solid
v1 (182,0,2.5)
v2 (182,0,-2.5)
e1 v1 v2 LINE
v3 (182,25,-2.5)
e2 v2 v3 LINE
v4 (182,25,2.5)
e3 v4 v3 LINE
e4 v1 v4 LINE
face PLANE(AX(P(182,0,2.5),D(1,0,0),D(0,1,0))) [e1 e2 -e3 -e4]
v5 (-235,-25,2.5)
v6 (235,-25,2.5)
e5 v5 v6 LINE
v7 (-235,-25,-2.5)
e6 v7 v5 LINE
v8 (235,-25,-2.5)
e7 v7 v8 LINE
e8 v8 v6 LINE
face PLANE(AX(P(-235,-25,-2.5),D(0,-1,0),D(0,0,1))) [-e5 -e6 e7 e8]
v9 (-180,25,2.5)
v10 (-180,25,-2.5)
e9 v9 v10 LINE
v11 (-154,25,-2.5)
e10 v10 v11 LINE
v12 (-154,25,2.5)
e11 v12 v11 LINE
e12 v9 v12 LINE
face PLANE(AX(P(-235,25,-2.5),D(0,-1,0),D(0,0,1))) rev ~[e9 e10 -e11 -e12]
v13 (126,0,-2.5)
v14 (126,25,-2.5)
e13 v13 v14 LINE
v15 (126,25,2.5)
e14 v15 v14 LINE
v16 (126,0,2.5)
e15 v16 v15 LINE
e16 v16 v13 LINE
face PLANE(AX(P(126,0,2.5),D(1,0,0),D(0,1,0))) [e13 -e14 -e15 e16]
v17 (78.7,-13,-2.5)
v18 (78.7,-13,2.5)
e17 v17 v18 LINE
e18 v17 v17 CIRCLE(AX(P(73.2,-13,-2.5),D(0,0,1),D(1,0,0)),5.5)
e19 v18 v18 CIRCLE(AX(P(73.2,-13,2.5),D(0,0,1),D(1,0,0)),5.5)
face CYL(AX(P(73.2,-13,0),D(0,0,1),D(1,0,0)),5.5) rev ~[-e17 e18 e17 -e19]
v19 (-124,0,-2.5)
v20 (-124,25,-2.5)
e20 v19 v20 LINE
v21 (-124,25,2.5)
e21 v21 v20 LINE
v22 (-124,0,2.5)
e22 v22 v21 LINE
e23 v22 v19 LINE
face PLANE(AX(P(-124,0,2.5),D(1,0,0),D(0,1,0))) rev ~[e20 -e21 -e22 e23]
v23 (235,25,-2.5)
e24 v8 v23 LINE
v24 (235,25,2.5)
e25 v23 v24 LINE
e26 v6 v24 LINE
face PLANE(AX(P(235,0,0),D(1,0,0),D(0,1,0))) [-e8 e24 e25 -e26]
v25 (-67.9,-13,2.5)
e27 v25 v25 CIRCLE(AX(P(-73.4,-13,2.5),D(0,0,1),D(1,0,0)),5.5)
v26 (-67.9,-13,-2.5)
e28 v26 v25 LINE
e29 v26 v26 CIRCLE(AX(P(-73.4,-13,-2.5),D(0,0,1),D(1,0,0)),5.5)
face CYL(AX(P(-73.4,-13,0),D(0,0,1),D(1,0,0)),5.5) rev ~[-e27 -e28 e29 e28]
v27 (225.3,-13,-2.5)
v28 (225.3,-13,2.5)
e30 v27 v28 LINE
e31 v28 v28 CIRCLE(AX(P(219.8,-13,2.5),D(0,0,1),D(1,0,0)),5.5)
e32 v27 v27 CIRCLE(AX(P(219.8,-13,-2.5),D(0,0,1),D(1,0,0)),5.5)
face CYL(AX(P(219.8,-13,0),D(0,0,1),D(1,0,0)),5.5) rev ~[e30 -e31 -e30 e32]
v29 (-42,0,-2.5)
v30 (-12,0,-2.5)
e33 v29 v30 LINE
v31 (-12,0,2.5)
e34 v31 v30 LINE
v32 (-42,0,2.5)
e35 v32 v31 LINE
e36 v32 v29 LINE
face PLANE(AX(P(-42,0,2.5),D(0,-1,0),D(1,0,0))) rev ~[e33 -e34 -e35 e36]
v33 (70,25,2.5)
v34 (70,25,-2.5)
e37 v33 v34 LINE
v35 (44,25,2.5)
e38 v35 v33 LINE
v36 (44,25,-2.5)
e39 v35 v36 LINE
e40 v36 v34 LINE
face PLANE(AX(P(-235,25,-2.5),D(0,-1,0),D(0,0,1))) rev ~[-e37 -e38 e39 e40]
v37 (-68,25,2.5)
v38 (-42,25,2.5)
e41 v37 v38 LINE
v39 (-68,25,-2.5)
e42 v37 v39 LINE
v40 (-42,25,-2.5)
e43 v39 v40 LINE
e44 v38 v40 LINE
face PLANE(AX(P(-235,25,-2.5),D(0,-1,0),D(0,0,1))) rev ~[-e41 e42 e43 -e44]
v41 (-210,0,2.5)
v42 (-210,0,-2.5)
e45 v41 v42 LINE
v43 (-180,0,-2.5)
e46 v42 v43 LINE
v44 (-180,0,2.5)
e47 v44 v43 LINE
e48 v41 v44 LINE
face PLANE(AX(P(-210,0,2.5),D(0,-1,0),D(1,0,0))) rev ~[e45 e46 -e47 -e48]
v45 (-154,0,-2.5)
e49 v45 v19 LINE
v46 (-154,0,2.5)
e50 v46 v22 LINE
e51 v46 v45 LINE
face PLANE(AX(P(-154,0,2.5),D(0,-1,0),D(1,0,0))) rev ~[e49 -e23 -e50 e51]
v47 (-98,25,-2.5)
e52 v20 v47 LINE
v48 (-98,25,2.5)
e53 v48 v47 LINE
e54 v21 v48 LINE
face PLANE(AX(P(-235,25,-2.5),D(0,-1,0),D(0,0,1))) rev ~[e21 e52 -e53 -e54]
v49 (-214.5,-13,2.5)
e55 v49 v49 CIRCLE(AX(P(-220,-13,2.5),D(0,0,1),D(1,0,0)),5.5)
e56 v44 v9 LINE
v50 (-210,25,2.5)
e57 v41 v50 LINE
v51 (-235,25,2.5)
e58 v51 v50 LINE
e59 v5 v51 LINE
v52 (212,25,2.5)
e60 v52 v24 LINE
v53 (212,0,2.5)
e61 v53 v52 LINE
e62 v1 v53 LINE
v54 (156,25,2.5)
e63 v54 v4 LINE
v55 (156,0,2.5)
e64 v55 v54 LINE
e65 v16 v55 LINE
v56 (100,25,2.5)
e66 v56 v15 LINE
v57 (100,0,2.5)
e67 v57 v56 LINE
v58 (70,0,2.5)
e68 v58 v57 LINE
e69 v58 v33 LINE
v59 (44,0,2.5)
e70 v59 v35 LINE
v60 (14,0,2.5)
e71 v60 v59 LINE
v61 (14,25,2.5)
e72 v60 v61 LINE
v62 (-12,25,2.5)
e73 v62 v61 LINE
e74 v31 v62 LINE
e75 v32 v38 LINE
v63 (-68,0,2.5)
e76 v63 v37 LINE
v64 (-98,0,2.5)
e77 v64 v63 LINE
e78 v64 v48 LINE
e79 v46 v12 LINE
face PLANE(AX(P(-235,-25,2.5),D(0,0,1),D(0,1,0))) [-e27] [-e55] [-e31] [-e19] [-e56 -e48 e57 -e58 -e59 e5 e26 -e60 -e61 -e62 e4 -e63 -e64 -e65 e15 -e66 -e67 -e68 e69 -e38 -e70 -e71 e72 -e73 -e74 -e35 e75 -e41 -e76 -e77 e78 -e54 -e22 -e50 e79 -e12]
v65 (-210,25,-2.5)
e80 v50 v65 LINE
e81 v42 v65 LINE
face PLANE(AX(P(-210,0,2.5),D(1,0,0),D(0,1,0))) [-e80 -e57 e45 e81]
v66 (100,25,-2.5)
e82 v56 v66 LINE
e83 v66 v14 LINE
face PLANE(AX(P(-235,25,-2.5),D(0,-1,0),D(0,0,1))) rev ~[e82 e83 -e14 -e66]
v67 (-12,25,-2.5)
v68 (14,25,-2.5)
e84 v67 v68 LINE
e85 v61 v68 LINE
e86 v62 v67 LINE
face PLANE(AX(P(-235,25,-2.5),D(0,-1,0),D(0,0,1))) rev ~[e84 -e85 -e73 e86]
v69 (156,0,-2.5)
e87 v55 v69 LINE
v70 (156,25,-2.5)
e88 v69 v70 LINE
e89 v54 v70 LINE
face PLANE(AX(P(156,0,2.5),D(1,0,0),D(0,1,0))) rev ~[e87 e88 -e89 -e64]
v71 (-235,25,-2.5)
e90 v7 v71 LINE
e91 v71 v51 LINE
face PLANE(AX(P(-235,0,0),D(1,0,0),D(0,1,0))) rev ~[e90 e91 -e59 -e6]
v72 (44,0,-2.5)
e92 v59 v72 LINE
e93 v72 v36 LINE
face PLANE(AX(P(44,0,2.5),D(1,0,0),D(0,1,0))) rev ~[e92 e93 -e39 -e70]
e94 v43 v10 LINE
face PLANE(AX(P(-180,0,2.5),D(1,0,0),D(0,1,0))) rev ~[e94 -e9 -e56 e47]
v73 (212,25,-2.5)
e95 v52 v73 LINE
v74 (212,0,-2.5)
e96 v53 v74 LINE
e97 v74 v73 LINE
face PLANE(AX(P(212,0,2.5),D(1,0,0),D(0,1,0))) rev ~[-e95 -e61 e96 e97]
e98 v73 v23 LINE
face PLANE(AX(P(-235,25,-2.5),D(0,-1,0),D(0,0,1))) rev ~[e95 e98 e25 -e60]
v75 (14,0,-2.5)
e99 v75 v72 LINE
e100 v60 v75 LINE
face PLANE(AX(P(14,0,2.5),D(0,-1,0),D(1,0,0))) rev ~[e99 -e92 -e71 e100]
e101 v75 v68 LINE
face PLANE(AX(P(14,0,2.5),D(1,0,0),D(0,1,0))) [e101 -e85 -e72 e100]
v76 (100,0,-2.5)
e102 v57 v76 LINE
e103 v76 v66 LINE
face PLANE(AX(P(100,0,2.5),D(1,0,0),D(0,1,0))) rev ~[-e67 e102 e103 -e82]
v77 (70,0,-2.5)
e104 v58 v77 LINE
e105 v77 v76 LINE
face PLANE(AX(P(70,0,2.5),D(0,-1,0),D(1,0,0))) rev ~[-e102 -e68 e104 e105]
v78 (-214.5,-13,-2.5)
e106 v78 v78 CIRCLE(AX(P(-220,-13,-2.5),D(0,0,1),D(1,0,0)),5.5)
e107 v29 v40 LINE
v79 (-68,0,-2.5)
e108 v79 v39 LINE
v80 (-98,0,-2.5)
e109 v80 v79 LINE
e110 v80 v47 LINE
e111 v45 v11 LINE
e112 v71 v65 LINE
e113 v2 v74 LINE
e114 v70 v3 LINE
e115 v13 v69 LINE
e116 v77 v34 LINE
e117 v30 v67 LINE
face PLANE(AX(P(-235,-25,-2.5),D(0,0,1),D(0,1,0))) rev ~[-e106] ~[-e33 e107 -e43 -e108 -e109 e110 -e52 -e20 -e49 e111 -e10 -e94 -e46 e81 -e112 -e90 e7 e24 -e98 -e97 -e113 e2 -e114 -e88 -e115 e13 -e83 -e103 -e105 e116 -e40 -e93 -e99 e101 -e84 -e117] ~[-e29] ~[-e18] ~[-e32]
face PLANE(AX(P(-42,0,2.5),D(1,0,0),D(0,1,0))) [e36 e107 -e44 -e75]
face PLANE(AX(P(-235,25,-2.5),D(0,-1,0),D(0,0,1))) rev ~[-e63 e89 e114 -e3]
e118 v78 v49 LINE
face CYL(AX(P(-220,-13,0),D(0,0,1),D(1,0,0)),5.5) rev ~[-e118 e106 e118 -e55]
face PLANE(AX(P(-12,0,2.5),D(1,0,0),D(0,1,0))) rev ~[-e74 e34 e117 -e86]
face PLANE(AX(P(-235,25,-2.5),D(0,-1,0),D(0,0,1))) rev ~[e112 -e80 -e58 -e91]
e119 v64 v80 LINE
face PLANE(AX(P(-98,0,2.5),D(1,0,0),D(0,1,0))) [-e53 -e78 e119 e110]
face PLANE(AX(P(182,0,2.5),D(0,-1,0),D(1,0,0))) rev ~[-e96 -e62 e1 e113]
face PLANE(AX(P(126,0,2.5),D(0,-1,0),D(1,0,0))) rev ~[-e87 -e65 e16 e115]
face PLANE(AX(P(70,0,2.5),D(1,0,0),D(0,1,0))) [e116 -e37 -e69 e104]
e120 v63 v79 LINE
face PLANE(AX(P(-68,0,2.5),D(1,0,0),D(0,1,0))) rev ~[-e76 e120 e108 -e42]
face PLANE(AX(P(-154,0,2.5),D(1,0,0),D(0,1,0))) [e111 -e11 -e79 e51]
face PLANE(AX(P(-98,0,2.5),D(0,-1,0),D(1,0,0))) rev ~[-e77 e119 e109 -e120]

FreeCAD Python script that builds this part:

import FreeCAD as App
import Part
import Sketcher
from FreeCAD import Vector

doc = App.newDocument("Part")
body = doc.addObject("PartDesign::Body", "Body")

sketch1 = doc.addObject("Sketcher::SketchObject", "Sketch")
body.addObject(sketch1)
sketch1.AttachmentSupport = (doc.YZ_Plane, [""])
sketch1.MapMode = "FlatFace"
sketch1.AttachmentOffset = App.Placement(Vector(0, 0, -235), App.Rotation())
sketch1.addGeometry(Part.LineSegment(Vector(-25, 2.5, 0), Vector(-25, -2.5, 0)), False)
sketch1.addGeometry(Part.LineSegment(Vector(-25, -2.5, 0), Vector(25, -2.5, 0)), False)
sketch1.addGeometry(Part.LineSegment(Vector(25, -2.5, 0), Vector(25, 2.5, 0)), False)
sketch1.addGeometry(Part.LineSegment(Vector(25, 2.5, 0), Vector(-25, 2.5, 0)), False)
sketch1.addConstraint(Sketcher.Constraint("Coincident", 0, 2, 1, 1))
sketch1.addConstraint(Sketcher.Constraint("Coincident", 1, 2, 2, 1))
sketch1.addConstraint(Sketcher.Constraint("Coincident", 2, 2, 3, 1))
sketch1.addConstraint(Sketcher.Constraint("Coincident", 3, 2, 0, 1))
sketch1.addConstraint(Sketcher.Constraint("Vertical", 0))
sketch1.addConstraint(Sketcher.Constraint("Horizontal", 1))
sketch1.addConstraint(Sketcher.Constraint("Vertical", 2))
sketch1.addConstraint(Sketcher.Constraint("Horizontal", 3))
sketch1.addConstraint(Sketcher.Constraint("Symmetric", 0, 2, 2, 2, -1, 1))
sketch1.addConstraint(Sketcher.Constraint("DistanceX", 1, 1, 1, 2, 50.0))
sketch1.addConstraint(Sketcher.Constraint("DistanceY", 0, 2, 0, 1, 5.0))
pad1 = doc.addObject("PartDesign::Pad", "Pad")
body.addObject(pad1)
pad1.Profile = sketch1
pad1.Length = 470

sketch2 = doc.addObject("Sketcher::SketchObject", "Sketch001")
body.addObject(sketch2)
sketch2.AttachmentSupport = (doc.XY_Plane, [""])
sketch2.MapMode = "FlatFace"
sketch2.AttachmentOffset = App.Placement(Vector(0, 0, 2.5), App.Rotation())
sketch2.addGeometry(Part.LineSegment(Vector(-210, 25, 0), Vector(-210, 0, 0)), False)
sketch2.addGeometry(Part.LineSegment(Vector(-210, 0, 0), Vector(-180, 0, 0)), False)
sketch2.addGeometry(Part.LineSegment(Vector(-180, 0, 0), Vector(-180, 25, 0)), False)
sketch2.addGeometry(Part.LineSegment(Vector(-180, 25, 0), Vector(-210, 25, 0)), False)
sketch2.addConstraint(Sketcher.Constraint("Coincident", 0, 2, 1, 1))
sketch2.addConstraint(Sketcher.Constraint("Coincident", 1, 2, 2, 1))
sketch2.addConstraint(Sketcher.Constraint("Coincident", 2, 2, 3, 1))
sketch2.addConstraint(Sketcher.Constraint("Coincident", 3, 2, 0, 1))
sketch2.addConstraint(Sketcher.Constraint("Vertical", 0))
sketch2.addConstraint(Sketcher.Constraint("Horizontal", 1))
sketch2.addConstraint(Sketcher.Constraint("Vertical", 2))
sketch2.addConstraint(Sketcher.Constraint("Horizontal", 3))
sketch2.addConstraint(Sketcher.Constraint("PointOnObject", 0, 2, -1))
sketch2.addConstraint(Sketcher.Constraint("DistanceX", 1, 1, 1, 2, 30.0))
sketch2.addConstraint(Sketcher.Constraint("DistanceY", 0, 2, 0, 1, 25.0))
sketch2.addConstraint(Sketcher.Constraint("DistanceX", 0, 2, -1, 1, 210.0))
pocket1 = doc.addObject("PartDesign::Pocket", "Pocket")
body.addObject(pocket1)
pocket1.Profile = sketch2
pocket1.Type = "ThroughAll"
doc.recompute()

linearpattern = doc.addObject("PartDesign::LinearPattern", "LinearPattern")
body.addObject(linearpattern)
linearpattern.Originals = [pocket1]
linearpattern.Direction = (doc.X_Axis, [""])
linearpattern.Mode = "offset"
linearpattern.Offset = 56
linearpattern.Occurrences = 8
body.Tip = linearpattern

sketch3 = doc.addObject("Sketcher::SketchObject", "Sketch002")
body.addObject(sketch3)
sketch3.AttachmentSupport = (doc.XY_Plane, [""])
sketch3.MapMode = "FlatFace"
sketch3.addGeometry(Part.Circle(Vector(-220, -13, 0), Vector(0, 0, 1), 5.5), False)
sketch3.addConstraint(Sketcher.Constraint("Diameter", 0, 11.0))
sketch3.addConstraint(Sketcher.Constraint("DistanceX", 0, 3, -1, 1, 220.0))
sketch3.addConstraint(Sketcher.Constraint("DistanceY", 0, 3, -1, 1, 13.0))
pocket2 = doc.addObject("PartDesign::Pocket", "Pocket001")
body.addObject(pocket2)
pocket2.Profile = sketch3
pocket2.Length = 10
pocket2.Midplane = True
doc.recompute()

linearpattern2 = doc.addObject("PartDesign::LinearPattern", "LinearPattern001")
body.addObject(linearpattern2)
linearpattern2.Originals = [pocket2]
linearpattern2.Direction = (doc.X_Axis, [""])
linearpattern2.Mode = "offset"
linearpattern2.Offset = 146.6
linearpattern2.Occurrences = 4
body.Tip = linearpattern2

doc.recompute()
